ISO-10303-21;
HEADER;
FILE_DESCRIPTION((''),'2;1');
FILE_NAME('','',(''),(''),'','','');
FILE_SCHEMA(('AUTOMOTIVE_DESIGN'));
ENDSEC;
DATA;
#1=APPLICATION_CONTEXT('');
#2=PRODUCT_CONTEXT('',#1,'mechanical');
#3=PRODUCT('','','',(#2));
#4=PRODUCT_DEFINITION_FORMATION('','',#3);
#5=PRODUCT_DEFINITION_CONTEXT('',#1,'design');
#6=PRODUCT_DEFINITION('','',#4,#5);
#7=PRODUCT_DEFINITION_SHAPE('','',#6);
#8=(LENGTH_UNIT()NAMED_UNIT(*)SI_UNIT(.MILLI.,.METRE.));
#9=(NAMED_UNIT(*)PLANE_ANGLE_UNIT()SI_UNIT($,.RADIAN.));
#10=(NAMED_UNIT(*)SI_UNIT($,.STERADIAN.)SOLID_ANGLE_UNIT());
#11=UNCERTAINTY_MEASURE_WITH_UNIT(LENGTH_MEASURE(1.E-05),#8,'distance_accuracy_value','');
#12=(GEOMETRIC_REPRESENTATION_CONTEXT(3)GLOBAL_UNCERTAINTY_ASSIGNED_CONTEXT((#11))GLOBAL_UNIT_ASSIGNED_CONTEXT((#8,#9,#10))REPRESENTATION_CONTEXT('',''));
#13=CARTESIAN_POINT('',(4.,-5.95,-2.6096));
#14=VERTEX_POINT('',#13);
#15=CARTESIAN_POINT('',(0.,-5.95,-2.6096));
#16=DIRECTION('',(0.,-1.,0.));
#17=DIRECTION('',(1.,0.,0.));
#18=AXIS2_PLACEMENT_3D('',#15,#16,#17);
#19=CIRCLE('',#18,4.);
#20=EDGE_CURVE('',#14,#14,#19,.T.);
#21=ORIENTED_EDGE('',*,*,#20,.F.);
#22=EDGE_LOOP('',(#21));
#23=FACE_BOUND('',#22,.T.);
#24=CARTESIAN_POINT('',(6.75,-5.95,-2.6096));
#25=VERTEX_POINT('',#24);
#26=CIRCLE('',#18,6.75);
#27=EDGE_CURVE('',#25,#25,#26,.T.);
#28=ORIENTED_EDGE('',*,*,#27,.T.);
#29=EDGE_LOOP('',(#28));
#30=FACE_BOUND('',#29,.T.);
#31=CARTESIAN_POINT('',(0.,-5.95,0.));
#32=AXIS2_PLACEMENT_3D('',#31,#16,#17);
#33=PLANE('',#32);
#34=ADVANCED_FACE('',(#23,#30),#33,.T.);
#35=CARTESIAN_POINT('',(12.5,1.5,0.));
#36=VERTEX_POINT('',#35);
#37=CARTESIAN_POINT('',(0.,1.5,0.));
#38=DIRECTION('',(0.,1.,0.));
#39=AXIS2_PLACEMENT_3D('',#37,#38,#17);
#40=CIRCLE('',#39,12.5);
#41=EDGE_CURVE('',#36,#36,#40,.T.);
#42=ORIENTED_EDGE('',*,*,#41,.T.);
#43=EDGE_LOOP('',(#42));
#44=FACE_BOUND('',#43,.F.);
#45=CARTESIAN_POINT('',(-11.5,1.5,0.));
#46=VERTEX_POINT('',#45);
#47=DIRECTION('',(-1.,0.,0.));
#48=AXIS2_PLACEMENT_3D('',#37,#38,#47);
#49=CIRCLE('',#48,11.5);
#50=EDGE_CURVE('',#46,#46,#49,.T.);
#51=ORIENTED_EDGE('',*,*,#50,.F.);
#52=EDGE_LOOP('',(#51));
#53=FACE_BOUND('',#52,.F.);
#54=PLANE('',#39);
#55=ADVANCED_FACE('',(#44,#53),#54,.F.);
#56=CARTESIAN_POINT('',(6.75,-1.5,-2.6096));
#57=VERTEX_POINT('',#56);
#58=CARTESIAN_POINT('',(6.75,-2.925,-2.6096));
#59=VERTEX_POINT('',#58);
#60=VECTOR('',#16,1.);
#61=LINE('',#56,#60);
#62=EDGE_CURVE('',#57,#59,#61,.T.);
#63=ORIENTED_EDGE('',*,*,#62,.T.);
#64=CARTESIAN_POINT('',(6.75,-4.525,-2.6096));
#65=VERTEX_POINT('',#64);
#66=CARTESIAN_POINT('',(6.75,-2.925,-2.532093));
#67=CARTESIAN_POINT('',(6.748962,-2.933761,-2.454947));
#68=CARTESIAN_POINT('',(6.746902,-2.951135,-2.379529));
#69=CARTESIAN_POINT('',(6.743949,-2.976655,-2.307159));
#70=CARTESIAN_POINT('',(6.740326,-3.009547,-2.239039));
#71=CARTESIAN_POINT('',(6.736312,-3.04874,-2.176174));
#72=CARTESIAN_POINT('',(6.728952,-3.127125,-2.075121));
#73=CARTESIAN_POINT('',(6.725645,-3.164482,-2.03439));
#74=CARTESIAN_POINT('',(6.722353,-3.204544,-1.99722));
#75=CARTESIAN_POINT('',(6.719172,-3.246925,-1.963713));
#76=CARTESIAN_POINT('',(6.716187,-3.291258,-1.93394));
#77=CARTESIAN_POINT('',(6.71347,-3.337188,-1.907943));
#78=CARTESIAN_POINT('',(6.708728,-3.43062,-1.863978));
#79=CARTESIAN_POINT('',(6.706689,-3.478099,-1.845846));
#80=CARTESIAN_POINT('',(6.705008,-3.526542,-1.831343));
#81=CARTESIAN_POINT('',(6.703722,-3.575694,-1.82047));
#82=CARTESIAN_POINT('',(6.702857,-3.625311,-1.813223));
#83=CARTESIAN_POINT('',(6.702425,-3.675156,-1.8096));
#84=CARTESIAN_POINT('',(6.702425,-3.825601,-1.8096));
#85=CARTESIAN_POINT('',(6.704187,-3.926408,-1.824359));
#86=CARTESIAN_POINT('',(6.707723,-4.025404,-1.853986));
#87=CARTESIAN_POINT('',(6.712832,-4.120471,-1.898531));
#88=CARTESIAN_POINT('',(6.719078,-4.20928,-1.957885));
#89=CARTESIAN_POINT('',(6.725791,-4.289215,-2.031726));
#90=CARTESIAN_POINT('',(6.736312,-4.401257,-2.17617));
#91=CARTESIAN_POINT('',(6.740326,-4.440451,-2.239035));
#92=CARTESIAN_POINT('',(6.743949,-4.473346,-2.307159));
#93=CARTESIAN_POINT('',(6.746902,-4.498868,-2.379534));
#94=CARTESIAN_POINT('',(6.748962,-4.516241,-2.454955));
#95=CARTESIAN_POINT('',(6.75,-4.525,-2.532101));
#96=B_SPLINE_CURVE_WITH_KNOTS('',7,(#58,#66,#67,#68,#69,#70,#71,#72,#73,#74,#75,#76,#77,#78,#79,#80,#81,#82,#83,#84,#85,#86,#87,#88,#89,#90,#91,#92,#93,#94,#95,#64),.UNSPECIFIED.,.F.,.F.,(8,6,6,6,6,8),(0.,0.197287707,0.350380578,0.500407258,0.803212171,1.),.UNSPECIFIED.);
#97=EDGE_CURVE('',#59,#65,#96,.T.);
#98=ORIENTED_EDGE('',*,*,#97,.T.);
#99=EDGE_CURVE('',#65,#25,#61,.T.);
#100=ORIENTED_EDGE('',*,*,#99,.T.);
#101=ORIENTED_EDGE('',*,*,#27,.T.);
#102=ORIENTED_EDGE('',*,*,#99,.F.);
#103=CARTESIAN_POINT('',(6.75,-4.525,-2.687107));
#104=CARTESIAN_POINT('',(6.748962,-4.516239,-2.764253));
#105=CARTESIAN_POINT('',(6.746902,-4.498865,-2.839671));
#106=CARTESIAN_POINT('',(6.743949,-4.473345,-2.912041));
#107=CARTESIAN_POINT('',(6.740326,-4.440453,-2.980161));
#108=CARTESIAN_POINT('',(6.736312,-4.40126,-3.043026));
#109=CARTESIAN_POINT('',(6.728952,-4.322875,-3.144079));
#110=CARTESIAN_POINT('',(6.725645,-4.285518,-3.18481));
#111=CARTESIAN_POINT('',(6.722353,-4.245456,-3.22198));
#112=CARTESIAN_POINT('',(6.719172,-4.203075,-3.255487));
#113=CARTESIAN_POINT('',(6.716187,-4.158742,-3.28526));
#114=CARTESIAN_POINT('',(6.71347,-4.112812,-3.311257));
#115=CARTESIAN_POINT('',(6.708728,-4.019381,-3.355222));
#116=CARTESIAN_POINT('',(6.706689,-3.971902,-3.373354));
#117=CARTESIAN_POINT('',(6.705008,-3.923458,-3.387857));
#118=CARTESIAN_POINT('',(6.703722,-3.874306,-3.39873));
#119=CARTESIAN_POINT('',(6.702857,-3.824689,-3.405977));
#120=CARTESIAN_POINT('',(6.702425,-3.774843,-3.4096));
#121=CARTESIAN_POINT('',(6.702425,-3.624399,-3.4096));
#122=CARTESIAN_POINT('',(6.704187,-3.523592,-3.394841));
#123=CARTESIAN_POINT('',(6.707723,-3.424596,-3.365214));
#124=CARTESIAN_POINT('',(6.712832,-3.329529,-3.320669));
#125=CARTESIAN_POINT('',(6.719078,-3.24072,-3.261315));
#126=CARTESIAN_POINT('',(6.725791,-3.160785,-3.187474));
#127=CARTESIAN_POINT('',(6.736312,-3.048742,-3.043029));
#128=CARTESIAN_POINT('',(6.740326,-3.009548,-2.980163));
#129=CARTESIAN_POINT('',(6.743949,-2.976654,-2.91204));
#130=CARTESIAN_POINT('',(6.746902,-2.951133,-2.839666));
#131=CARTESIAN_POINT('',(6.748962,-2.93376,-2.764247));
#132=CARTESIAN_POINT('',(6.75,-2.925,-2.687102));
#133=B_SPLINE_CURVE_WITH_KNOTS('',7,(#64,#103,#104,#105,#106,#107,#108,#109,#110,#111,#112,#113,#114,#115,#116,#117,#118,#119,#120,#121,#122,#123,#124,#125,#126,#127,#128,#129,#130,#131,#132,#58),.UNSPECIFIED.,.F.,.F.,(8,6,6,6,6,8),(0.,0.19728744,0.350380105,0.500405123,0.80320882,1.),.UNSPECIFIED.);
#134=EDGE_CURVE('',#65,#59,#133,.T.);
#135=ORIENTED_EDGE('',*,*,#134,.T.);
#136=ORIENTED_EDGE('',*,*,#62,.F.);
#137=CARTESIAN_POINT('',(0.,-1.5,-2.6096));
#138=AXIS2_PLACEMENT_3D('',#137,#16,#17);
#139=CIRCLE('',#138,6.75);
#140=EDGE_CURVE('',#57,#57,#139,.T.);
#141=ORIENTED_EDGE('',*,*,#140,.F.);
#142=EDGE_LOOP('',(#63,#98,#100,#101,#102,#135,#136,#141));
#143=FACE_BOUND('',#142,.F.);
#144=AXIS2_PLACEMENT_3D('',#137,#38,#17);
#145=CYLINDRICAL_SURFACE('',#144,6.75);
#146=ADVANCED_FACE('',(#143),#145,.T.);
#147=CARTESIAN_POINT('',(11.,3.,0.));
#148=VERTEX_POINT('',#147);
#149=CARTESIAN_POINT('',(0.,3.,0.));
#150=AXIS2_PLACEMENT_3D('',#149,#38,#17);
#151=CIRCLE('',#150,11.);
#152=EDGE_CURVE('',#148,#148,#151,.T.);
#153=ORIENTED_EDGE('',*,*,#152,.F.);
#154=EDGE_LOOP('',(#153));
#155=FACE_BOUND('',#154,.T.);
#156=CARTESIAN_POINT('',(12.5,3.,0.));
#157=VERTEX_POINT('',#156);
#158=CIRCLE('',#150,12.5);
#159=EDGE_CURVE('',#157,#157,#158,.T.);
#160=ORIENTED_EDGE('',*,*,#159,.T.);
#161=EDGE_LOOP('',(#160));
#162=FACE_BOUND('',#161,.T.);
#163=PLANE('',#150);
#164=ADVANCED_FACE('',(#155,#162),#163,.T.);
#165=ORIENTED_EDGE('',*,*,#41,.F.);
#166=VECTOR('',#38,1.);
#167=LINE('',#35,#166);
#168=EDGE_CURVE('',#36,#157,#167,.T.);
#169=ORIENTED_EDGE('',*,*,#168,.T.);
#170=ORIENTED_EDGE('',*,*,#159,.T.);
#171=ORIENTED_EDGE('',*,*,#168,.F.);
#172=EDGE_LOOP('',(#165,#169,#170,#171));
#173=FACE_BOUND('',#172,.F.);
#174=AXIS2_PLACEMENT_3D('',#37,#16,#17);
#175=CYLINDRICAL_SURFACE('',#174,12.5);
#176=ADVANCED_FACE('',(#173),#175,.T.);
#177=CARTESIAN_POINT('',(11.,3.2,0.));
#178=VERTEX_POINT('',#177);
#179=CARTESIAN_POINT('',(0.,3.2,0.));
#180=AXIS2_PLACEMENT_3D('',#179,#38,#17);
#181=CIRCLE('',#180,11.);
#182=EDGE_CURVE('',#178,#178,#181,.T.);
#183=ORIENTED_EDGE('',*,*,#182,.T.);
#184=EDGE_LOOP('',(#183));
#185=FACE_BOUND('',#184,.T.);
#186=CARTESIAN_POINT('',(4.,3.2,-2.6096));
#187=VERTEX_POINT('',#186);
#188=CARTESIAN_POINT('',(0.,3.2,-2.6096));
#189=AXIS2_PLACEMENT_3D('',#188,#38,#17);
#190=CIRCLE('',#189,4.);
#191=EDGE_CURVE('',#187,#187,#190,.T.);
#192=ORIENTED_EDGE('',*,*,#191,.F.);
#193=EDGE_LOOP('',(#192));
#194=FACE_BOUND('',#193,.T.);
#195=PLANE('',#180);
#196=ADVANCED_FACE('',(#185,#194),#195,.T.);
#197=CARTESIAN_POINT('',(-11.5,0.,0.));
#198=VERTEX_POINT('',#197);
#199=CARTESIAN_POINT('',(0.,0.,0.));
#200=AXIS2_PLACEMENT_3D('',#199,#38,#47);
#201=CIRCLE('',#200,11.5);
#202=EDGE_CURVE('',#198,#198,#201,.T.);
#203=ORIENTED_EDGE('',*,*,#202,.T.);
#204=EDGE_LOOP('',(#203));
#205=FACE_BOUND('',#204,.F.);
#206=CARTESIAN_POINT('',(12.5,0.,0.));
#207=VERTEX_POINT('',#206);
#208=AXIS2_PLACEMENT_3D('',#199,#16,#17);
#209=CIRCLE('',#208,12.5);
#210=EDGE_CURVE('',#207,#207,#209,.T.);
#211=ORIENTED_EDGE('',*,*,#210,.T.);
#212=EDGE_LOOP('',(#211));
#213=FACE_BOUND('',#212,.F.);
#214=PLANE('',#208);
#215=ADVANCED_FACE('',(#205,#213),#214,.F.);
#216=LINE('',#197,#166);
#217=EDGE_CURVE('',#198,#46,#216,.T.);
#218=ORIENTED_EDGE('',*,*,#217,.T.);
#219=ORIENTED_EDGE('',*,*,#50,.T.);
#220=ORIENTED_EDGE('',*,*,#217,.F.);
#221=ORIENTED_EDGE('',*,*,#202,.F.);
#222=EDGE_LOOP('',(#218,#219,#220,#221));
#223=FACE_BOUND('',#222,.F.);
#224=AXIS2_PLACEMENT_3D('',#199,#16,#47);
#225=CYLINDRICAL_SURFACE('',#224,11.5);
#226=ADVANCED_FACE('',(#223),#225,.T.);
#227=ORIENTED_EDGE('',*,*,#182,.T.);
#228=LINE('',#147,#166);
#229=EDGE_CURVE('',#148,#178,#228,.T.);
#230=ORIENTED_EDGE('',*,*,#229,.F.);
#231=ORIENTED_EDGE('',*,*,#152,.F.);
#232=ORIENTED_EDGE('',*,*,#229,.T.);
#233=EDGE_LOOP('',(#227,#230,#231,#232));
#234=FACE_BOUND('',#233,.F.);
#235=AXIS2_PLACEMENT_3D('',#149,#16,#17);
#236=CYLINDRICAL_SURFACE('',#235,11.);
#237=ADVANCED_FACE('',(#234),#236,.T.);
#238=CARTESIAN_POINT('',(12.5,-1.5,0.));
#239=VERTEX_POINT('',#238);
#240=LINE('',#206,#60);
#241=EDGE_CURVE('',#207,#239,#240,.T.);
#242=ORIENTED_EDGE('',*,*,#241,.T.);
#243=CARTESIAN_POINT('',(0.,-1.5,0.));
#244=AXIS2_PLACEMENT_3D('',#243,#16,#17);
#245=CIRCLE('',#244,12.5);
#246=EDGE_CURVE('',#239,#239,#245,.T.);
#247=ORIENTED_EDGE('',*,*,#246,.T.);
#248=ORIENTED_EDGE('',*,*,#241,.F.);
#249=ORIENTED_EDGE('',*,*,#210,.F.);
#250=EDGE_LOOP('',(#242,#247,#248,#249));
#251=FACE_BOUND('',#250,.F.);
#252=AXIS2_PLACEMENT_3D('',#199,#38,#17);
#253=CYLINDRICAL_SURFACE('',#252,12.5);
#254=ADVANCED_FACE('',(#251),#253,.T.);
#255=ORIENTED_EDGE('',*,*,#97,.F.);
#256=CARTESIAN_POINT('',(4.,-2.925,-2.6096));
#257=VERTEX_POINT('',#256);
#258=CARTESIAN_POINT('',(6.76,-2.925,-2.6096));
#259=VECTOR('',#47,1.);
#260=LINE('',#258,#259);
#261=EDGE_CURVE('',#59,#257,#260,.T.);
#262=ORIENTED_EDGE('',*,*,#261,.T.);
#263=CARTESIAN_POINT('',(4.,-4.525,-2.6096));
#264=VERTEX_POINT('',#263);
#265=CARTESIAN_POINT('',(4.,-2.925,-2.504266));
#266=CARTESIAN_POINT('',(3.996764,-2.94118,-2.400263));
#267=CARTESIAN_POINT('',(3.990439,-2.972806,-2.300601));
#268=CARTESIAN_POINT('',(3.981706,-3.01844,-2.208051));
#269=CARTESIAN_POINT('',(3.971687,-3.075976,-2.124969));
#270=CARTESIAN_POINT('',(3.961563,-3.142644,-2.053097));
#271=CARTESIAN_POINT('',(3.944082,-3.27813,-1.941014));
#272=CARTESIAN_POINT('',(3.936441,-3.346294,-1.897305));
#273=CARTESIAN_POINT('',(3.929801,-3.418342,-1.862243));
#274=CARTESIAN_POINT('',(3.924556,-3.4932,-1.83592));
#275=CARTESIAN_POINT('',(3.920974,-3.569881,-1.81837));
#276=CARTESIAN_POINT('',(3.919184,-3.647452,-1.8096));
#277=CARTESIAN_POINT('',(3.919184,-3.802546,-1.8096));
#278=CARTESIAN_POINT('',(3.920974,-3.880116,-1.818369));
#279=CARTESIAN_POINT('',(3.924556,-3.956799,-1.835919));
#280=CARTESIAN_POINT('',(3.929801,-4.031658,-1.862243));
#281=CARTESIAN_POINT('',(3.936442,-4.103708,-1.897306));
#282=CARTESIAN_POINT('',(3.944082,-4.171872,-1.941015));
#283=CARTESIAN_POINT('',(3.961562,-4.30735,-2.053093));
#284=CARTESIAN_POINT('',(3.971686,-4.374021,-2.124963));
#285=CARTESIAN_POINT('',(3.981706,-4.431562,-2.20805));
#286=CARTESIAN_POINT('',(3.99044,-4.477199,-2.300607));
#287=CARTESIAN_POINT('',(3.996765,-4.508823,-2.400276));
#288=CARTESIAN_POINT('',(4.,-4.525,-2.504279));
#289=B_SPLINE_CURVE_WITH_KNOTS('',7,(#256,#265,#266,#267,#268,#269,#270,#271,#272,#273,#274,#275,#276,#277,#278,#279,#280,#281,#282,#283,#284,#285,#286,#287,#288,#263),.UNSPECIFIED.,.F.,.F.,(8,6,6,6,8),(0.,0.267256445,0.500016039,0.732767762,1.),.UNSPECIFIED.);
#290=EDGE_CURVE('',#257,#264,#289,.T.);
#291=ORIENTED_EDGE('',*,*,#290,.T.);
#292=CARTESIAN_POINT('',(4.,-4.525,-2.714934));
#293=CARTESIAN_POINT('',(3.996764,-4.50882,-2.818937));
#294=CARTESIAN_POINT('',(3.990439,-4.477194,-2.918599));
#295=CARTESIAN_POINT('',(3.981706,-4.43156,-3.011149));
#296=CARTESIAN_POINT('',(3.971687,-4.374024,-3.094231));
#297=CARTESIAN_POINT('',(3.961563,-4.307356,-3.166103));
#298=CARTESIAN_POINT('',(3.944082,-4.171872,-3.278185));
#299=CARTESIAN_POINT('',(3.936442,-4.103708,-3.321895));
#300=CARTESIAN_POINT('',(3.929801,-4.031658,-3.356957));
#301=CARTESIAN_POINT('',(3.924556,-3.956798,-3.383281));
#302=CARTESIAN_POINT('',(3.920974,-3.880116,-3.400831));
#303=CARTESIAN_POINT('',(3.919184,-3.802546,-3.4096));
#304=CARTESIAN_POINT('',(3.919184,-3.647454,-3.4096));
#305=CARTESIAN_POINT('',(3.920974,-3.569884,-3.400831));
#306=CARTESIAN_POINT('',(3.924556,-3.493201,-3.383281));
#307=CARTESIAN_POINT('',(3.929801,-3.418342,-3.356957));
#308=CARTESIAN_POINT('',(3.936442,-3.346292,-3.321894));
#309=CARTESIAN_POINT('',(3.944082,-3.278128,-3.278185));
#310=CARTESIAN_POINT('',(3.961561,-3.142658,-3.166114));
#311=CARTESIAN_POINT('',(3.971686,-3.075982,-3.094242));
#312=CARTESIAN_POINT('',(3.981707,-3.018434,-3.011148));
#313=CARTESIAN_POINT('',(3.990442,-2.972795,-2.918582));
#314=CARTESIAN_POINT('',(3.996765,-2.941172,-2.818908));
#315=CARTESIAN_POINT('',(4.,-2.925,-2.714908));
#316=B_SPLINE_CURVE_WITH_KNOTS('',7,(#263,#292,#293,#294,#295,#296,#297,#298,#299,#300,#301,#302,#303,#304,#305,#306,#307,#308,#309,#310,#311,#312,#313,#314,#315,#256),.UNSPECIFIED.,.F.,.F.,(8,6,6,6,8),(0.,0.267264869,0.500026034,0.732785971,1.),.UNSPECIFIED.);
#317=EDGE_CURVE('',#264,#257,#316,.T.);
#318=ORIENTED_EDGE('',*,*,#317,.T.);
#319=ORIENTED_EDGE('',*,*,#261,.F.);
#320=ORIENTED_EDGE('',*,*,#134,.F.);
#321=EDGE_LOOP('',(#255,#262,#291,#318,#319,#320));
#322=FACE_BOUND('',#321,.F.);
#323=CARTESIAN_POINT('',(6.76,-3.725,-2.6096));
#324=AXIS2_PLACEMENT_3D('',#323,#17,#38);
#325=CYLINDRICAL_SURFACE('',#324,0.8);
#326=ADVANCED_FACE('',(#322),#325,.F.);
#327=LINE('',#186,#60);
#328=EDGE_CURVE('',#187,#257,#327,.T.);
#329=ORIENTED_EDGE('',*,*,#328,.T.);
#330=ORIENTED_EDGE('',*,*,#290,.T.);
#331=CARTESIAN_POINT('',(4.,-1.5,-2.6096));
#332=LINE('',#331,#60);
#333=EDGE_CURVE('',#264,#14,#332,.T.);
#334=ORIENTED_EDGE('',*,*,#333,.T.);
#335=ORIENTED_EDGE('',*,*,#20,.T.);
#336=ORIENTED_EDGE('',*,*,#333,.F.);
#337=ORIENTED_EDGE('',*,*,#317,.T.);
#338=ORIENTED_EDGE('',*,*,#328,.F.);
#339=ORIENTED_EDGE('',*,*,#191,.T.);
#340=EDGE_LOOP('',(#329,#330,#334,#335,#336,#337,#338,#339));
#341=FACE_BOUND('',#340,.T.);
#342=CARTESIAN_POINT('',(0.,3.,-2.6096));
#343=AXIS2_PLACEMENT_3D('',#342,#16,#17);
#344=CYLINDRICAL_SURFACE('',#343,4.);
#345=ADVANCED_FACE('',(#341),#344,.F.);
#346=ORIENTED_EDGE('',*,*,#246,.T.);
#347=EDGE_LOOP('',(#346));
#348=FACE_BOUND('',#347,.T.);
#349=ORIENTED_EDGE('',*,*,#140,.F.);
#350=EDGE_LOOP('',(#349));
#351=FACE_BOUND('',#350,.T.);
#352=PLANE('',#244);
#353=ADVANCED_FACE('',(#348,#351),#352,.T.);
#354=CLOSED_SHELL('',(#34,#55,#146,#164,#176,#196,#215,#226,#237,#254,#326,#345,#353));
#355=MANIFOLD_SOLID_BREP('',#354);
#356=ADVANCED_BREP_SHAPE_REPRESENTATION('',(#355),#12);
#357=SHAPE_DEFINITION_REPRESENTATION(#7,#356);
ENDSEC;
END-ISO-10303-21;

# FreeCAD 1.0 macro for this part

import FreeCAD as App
import Part
import Sketcher
Q = App.Units.Quantity

doc = App.newDocument("Part")
body = doc.addObject("PartDesign::Body", "Body")

sketch1 = body.newObject("Sketcher::SketchObject", "Sketch")
sketch1.AttachmentSupport = (doc.getObject("XZ_Plane"), [""])
sketch1.MapMode = "FlatFace"
sketch1.addGeometry(Part.Circle(App.Vector(0, 0, 0), App.Vector(0, 0, 1), 12), False)
sketch1.addConstraint([
    Sketcher.Constraint("Coincident", 0, 3, -1, 1),
    Sketcher.Constraint("Diameter", 0, Q("23 mm")),
])
pad1 = body.newObject("PartDesign::Pad", "Pad")
pad1.Profile = sketch1
pad1.Length = 1.5
pad1.Reversed = True

sketch2 = body.newObject("Sketcher::SketchObject", "Sketch001")
sketch2.AttachmentSupport = (doc.getObject("XZ_Plane"), [""])
sketch2.MapMode = "FlatFace"
sketch2.AttachmentOffset = App.Placement(App.Vector(0, 0, -1.5), App.Rotation())
sketch2.addGeometry(Part.Circle(App.Vector(0, 0, 0), App.Vector(0, 0, 1), 12), False)
sketch2.addConstraint([
    Sketcher.Constraint("Coincident", 0, 3, -1, 1),
    Sketcher.Constraint("Diameter", 0, Q("25 mm")),
])
pad2 = body.newObject("PartDesign::Pad", "Pad001")
pad2.Profile = sketch2
pad2.Length = 1.5
pad2.Reversed = True

sketch3 = body.newObject("Sketcher::SketchObject", "Sketch002")
sketch3.AttachmentSupport = (doc.getObject("XZ_Plane"), [""])
sketch3.MapMode = "FlatFace"
sketch3.addGeometry(Part.Circle(App.Vector(0, 0, 0), App.Vector(0, 0, 1), 12), False)
sketch3.addConstraint([
    Sketcher.Constraint("Coincident", 0, 3, -1, 1),
    Sketcher.Constraint("Diameter", 0, Q("25 mm")),
])
pad3 = body.newObject("PartDesign::Pad", "Pad002")
pad3.Profile = sketch3
pad3.Length = 1.5

sketch4 = body.newObject("Sketcher::SketchObject", "Sketch003")
sketch4.AttachmentSupport = (doc.getObject("XZ_Plane"), [""])
sketch4.MapMode = "FlatFace"
sketch4.AttachmentOffset = App.Placement(App.Vector(0, 0, 1.5), App.Rotation())
sketch4.addGeometry([
    Part.Circle(App.Vector(0, -2.6, 0), App.Vector(0, 0, 1), 6.8),
    Part.Circle(App.Vector(0, -2.6, 0), App.Vector(0, 0, 1), 4),
], False)
sketch4.addConstraint([
    Sketcher.Constraint("Coincident", 1, 3, 0, 3),
    Sketcher.Constraint("PointOnObject", 0, 3, -2),
    Sketcher.Constraint("Diameter", 1, Q("8 mm")),
    Sketcher.Constraint("Diameter", 0, Q("13.5 mm")),
    Sketcher.Constraint("DistanceY", 0, 3, -1, 1, Q("2.6096 mm")),
])
pad4 = body.newObject("PartDesign::Pad", "Pad003")
pad4.Profile = sketch4
pad4.Length = 4.45

sketch5 = body.newObject("Sketcher::SketchObject", "Sketch004")
sketch5.AttachmentSupport = (doc.getObject("XZ_Plane"), [""])
sketch5.MapMode = "FlatFace"
sketch5.AttachmentOffset = App.Placement(App.Vector(0, 0, 1.5), App.Rotation())
sketch5.addGeometry(Part.Circle(App.Vector(0, -2.6, 0), App.Vector(0, 0, 1), 4), False)
sketch5.addConstraint([
    Sketcher.Constraint("PointOnObject", 0, 3, -2),
    Sketcher.Constraint("Diameter", 0, Q("8 mm")),
    Sketcher.Constraint("DistanceY", 0, 3, -1, 1, Q("2.6096 mm")),
])
pocket1 = body.newObject("PartDesign::Pocket", "Pocket")
pocket1.Profile = sketch5
pocket1.Length = 10

sketch6 = body.newObject("Sketcher::SketchObject", "Sketch005")
sketch6.AttachmentSupport = (doc.getObject("YZ_Plane"), [""])
sketch6.MapMode = "FlatFace"
sketch6.AttachmentOffset = App.Placement(App.Vector(0, 0, 6.76), App.Rotation())
sketch6.addGeometry(Part.Circle(App.Vector(-3.7, -2.6, 0), App.Vector(0, 0, 1), 0.8), False)
sketch6.addConstraint([
    Sketcher.Constraint("Diameter", 0, Q("1.6 mm")),
    Sketcher.Constraint("DistanceX", 0, 3, -1, 1, Q("3.725 mm")),
    Sketcher.Constraint("DistanceY", 0, 3, -1, 1, Q("2.6096 mm")),
])
pocket2 = body.newObject("PartDesign::Pocket", "Pocket001")
pocket2.Profile = sketch6
pocket2.Length = 4.45

sketch7 = body.newObject("Sketcher::SketchObject", "Sketch006")
sketch7.AttachmentSupport = (doc.getObject("XZ_Plane"), [""])
sketch7.MapMode = "FlatFace"
sketch7.AttachmentOffset = App.Placement(App.Vector(0, 0, -3), App.Rotation())
sketch7.addGeometry([
    Part.Circle(App.Vector(0, 0, 0), App.Vector(0, 0, 1), 11),
    Part.Circle(App.Vector(0, -2.6, 0), App.Vector(0, 0, 1), 4),
], False)
sketch7.addConstraint([
    Sketcher.Constraint("Coincident", 0, 3, -1, 1),
    Sketcher.Constraint("PointOnObject", 1, 3, -2),
    Sketcher.Constraint("Diameter", 0, Q("22 mm")),
    Sketcher.Constraint("Diameter", 1, Q("8 mm")),
    Sketcher.Constraint("DistanceY", 1, 3, -1, 1, Q("2.6096 mm")),
])
pad5 = body.newObject("PartDesign::Pad", "Pad004")
pad5.Profile = sketch7
pad5.Length = 0.2
pad5.Reversed = True

doc.recompute()
